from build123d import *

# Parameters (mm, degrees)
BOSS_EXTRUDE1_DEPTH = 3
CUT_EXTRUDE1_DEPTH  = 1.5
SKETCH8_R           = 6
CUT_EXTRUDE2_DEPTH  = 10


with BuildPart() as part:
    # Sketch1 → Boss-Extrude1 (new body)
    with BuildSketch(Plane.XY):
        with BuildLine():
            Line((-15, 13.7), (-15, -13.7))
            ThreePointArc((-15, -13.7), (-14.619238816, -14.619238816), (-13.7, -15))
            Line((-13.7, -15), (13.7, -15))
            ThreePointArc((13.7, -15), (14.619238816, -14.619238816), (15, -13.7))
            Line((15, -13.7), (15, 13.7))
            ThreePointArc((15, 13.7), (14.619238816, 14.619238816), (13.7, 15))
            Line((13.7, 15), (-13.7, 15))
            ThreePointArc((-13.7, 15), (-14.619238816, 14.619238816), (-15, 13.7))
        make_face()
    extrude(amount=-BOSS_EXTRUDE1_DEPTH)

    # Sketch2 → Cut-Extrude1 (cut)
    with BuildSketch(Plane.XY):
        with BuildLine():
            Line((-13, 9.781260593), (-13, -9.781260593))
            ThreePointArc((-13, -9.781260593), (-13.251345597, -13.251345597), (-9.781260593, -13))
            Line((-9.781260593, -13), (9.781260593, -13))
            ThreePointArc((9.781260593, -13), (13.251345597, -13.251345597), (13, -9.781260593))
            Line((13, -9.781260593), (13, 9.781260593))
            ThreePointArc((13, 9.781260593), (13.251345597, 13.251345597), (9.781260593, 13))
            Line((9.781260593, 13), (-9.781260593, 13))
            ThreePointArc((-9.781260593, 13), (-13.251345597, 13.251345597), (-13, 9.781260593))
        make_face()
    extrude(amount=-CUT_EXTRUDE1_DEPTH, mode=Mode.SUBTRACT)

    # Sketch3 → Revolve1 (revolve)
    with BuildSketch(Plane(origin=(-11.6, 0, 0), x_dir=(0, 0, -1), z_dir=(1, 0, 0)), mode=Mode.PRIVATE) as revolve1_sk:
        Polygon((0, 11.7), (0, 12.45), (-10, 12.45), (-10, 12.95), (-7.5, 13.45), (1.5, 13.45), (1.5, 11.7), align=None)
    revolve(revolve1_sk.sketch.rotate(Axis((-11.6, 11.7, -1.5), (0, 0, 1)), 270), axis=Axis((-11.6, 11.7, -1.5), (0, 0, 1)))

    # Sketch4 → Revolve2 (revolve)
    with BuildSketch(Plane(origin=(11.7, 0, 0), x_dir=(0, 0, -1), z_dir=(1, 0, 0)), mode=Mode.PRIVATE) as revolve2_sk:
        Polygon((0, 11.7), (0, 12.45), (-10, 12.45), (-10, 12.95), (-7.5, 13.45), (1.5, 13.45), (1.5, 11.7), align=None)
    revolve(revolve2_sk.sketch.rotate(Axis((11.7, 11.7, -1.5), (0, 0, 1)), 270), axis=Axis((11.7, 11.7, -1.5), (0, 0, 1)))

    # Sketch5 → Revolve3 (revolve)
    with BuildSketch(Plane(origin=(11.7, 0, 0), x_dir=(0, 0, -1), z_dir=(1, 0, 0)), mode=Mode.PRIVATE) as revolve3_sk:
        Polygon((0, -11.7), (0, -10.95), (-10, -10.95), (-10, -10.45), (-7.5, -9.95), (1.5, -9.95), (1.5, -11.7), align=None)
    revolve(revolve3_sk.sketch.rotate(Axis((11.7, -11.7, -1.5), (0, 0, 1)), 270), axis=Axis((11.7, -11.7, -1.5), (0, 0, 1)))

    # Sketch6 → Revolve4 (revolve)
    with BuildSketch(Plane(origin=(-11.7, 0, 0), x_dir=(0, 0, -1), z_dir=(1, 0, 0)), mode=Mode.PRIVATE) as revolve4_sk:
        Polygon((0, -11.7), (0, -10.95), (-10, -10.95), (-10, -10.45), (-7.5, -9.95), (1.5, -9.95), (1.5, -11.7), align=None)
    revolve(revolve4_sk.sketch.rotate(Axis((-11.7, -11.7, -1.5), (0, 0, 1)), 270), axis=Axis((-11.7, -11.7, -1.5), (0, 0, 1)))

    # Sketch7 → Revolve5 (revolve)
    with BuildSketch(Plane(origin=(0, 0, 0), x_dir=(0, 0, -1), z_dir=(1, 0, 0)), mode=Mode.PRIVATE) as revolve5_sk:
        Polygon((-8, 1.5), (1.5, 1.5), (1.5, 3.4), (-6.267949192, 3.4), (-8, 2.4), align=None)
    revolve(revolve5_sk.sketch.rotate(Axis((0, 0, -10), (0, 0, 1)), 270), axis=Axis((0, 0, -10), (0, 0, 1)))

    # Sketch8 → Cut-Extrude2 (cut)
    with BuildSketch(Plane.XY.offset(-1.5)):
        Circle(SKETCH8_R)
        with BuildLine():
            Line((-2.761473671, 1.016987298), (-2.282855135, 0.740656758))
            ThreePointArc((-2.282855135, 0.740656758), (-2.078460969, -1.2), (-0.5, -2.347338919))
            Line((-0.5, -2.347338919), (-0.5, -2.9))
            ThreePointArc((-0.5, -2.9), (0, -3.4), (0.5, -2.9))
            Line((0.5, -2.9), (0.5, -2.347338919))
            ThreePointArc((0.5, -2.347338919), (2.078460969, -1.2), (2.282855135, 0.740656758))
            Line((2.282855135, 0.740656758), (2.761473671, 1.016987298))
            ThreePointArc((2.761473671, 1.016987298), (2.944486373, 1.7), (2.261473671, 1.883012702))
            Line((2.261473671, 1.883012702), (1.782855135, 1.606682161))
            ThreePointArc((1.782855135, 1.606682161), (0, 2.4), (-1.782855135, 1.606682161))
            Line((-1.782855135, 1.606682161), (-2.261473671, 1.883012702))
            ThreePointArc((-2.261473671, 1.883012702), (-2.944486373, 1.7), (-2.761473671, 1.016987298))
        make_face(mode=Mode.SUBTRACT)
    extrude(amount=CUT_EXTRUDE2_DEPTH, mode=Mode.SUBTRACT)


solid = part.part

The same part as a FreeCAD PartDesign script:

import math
import FreeCAD as App
import Part
import Sketcher
from FreeCAD import Vector
Q = App.Units.Quantity

doc = App.newDocument("Part")
body = doc.addObject("PartDesign::Body", "Body")

# Sketch on XY plane
sketch1 = body.newObject("Sketcher::SketchObject", "Sketch")
sketch1.AttachmentSupport = (doc.getObject("XY_Plane"), [""])
sketch1.MapMode = "FlatFace"
sketch1.addGeometry([
    Part.LineSegment(Vector(-15, 13.7, 0), Vector(-15, -13.7, 0)),  # 0
    Part.ArcOfCircle(Part.Circle(Vector(-13.7, -13.7, 0), Vector(0, 0, 1), 1.3), math.radians(180), math.radians(270)),  # 1
    Part.LineSegment(Vector(-13.7, -15, 0), Vector(13.7, -15, 0)),  # 2
    Part.ArcOfCircle(Part.Circle(Vector(13.7, -13.7, 0), Vector(0, 0, 1), 1.3), math.radians(-90), math.radians(0)),  # 3
    Part.LineSegment(Vector(15, -13.7, 0), Vector(15, 13.7, 0)),  # 4
    Part.ArcOfCircle(Part.Circle(Vector(13.7, 13.7, 0), Vector(0, 0, 1), 1.3), math.radians(0), math.radians(90)),  # 5
    Part.LineSegment(Vector(13.7, 15, 0), Vector(-13.7, 15, 0)),  # 6
    Part.ArcOfCircle(Part.Circle(Vector(-13.7, 13.7, 0), Vector(0, 0, 1), 1.3), math.radians(90), math.radians(180)),  # 7
], False)
sketch1.addConstraint([
    Sketcher.Constraint("Tangent", 0, 2, 1, 1),
    Sketcher.Constraint("Tangent", 1, 2, 2, 1),
    Sketcher.Constraint("Tangent", 2, 2, 3, 1),
    Sketcher.Constraint("Tangent", 3, 2, 4, 1),
    Sketcher.Constraint("Tangent", 4, 2, 5, 1),
    Sketcher.Constraint("Tangent", 5, 2, 6, 1),
    Sketcher.Constraint("Tangent", 6, 2, 7, 1),
    Sketcher.Constraint("Tangent", 7, 2, 0, 1),
    Sketcher.Constraint("Vertical", 0),
    Sketcher.Constraint("Horizontal", 2),
    Sketcher.Constraint("Vertical", 4),
    Sketcher.Constraint("Horizontal", 6),
    Sketcher.Constraint("Equal", 1, 3),
    Sketcher.Constraint("Equal", 3, 5),
    Sketcher.Constraint("Equal", 5, 7),
    Sketcher.Constraint("Symmetric", 1, 3, 5, 3, -1, 1),
    Sketcher.Constraint("Equal", 6, 0),
    Sketcher.Constraint("Radius", 1, Q("1.3 mm")),
    Sketcher.Constraint("DistanceX", 2, 1, 2, 2, Q("27.4 mm")),
])
pad1 = body.newObject("PartDesign::Pad", "Pad")
pad1.Profile = sketch1
pad1.Length = 3
pad1.Reversed = True

# Sketch on XY plane
sketch2 = body.newObject("Sketcher::SketchObject", "Sketch001")
sketch2.AttachmentSupport = (doc.getObject("XY_Plane"), [""])
sketch2.MapMode = "FlatFace"
sketch2.addGeometry([
    Part.LineSegment(Vector(-13, 9.8, 0), Vector(-13, -9.8, 0)),  # 0
    Part.ArcOfCircle(Part.Circle(Vector(-11.6, -11.6, 0), Vector(0, 0, 1), 2.3), math.radians(127), math.radians(323)),  # 1
    Part.LineSegment(Vector(-9.8, -13, 0), Vector(9.8, -13, 0)),  # 2
    Part.ArcOfCircle(Part.Circle(Vector(11.6, -11.6, 0), Vector(0, 0, 1), 2.3), math.radians(-143), math.radians(53)),  # 3
    Part.LineSegment(Vector(13, -9.8, 0), Vector(13, 9.8, 0)),  # 4
    Part.ArcOfCircle(Part.Circle(Vector(11.6, 11.6, 0), Vector(0, 0, 1), 2.3), math.radians(-53), math.radians(143)),  # 5
    Part.LineSegment(Vector(9.8, 13, 0), Vector(-9.8, 13, 0)),  # 6
    Part.ArcOfCircle(Part.Circle(Vector(-11.6, 11.6, 0), Vector(0, 0, 1), 2.3), math.radians(37), math.radians(233)),  # 7
], False)
sketch2.addConstraint([
    Sketcher.Constraint("Coincident", 0, 2, 1, 1),
    Sketcher.Constraint("Coincident", 1, 2, 2, 1),
    Sketcher.Constraint("Coincident", 2, 2, 3, 1),
    Sketcher.Constraint("Coincident", 3, 2, 4, 1),
    Sketcher.Constraint("Coincident", 4, 2, 5, 1),
    Sketcher.Constraint("Coincident", 5, 2, 6, 1),
    Sketcher.Constraint("Coincident", 6, 2, 7, 1),
    Sketcher.Constraint("Coincident", 7, 2, 0, 1),
    Sketcher.Constraint("Vertical", 0),
    Sketcher.Constraint("Horizontal", 2),
    Sketcher.Constraint("Vertical", 4),
    Sketcher.Constraint("Horizontal", 6),
    Sketcher.Constraint("Equal", 1, 3),
    Sketcher.Constraint("Equal", 3, 5),
    Sketcher.Constraint("Equal", 5, 7),
    Sketcher.Constraint("Symmetric", 1, 3, 5, 3, -1, 1),
    Sketcher.Constraint("Symmetric", 3, 3, 7, 3, -1, 1),
    Sketcher.Constraint("Symmetric", 1, 3, 3, 3, -2),
    Sketcher.Constraint("Horizontal", 0, 2, 3, 2),
    Sketcher.Constraint("Vertical", 2, 2, 5, 2),
    Sketcher.Constraint("Equal", 6, 0),
    Sketcher.Constraint("Radius", 1, Q("2.3 mm")),
    Sketcher.Constraint("DistanceX", 0, 2, -1, 1, Q("13 mm")),
    Sketcher.Constraint("DistanceY", 1, 2, -1, 1, Q("13 mm")),
    Sketcher.Constraint("DistanceX", 1, 3, 3, 3, Q("23.25 mm")),
])
pocket1 = body.newObject("PartDesign::Pocket", "Pocket")
pocket1.Profile = sketch2
pocket1.Length = 1.5

# Sketch on YZ plane
sketch3 = body.newObject("Sketcher::SketchObject", "Sketch002")
sketch3.AttachmentSupport = (doc.getObject("YZ_Plane"), [""])
sketch3.MapMode = "FlatFace"
sketch3.AttachmentOffset = App.Placement(Vector(0, 0, -11.6), App.Rotation())
sketch3.addGeometry([
    Part.LineSegment(Vector(12.4, 0, 0), Vector(11.7, 0, 0)),  # 0
    Part.LineSegment(Vector(11.7, 0, 0), Vector(11.7, -1.5, 0)),  # 1
    Part.LineSegment(Vector(11.7, -1.5, 0), Vector(13.4, -1.5, 0)),  # 2
    Part.LineSegment(Vector(13.4, -1.5, 0), Vector(13.4, 7.5, 0)),  # 3
    Part.LineSegment(Vector(13.4, 7.5, 0), Vector(12.9, 10, 0)),  # 4
    Part.LineSegment(Vector(12.9, 10, 0), Vector(12.4, 10, 0)),  # 5
    Part.LineSegment(Vector(12.4, 10, 0), Vector(12.4, 0, 0)),  # 6
], False)
sketch3.addGeometry(Part.LineSegment(Vector(11.7, -1.5, 0), Vector(11.7, 10, 0)), True)  # axis
sketch3.addConstraint([
    Sketcher.Constraint("Coincident", 0, 2, 1, 1),
    Sketcher.Constraint("Coincident", 1, 2, 2, 1),
    Sketcher.Constraint("Coincident", 2, 2, 3, 1),
    Sketcher.Constraint("Coincident", 3, 2, 4, 1),
    Sketcher.Constraint("Coincident", 4, 2, 5, 1),
    Sketcher.Constraint("Coincident", 5, 2, 6, 1),
    Sketcher.Constraint("Coincident", 6, 2, 0, 1),
    Sketcher.Constraint("Horizontal", 0),
    Sketcher.Constraint("Vertical", 1),
    Sketcher.Constraint("Horizontal", 2),
    Sketcher.Constraint("Vertical", 3),
    Sketcher.Constraint("Horizontal", 5),
    Sketcher.Constraint("Vertical", 6),
    Sketcher.Constraint("Vertical", 7),
    Sketcher.Constraint("Coincident", 7, 1, 1, 2),
    Sketcher.Constraint("PointOnObject", 0, 2, -1),
    Sketcher.Constraint("Horizontal", 5, 2, 7, 2),
    Sketcher.Constraint("DistanceY", 3, 1, 3, 2, Q("9 mm")),
    Sketcher.Constraint("DistanceY", 6, 2, 6, 1, Q("10 mm")),
    Sketcher.Constraint("DistanceX", 5, 2, 5, 1, Q("0.5 mm")),
    Sketcher.Constraint("DistanceY", 1, 2, 1, 1, Q("1.5 mm")),
    Sketcher.Constraint("DistanceX", 5, 2, 3, 2, Q("1 mm")),
    Sketcher.Constraint("DistanceX", 0, 2, 0, 1, Q("0.75 mm")),
    Sketcher.Constraint("DistanceX", -1, 1, 0, 2, Q("11.7 mm")),
])
revolution = body.newObject("PartDesign::Revolution", "Revolution")
revolution.Profile = sketch3
revolution.ReferenceAxis = (sketch3, ["Axis0"])
revolution.Angle = 360

# Sketch on YZ plane
sketch4 = body.newObject("Sketcher::SketchObject", "Sketch003")
sketch4.AttachmentSupport = (doc.getObject("YZ_Plane"), [""])
sketch4.MapMode = "FlatFace"
sketch4.AttachmentOffset = App.Placement(Vector(0, 0, 11.7), App.Rotation())
sketch4.addGeometry([
    Part.LineSegment(Vector(12.4, 0, 0), Vector(11.7, 0, 0)),  # 0
    Part.LineSegment(Vector(11.7, 0, 0), Vector(11.7, -1.5, 0)),  # 1
    Part.LineSegment(Vector(11.7, -1.5, 0), Vector(13.4, -1.5, 0)),  # 2
    Part.LineSegment(Vector(13.4, -1.5, 0), Vector(13.4, 7.5, 0)),  # 3
    Part.LineSegment(Vector(13.4, 7.5, 0), Vector(12.9, 10, 0)),  # 4
    Part.LineSegment(Vector(12.9, 10, 0), Vector(12.4, 10, 0)),  # 5
    Part.LineSegment(Vector(12.4, 10, 0), Vector(12.4, 0, 0)),  # 6
], False)
sketch4.addGeometry(Part.LineSegment(Vector(11.7, -1.5, 0), Vector(11.7, 10, 0)), True)  # axis
sketch4.addConstraint([
    Sketcher.Constraint("Coincident", 0, 2, 1, 1),
    Sketcher.Constraint("Coincident", 1, 2, 2, 1),
    Sketcher.Constraint("Coincident", 2, 2, 3, 1),
    Sketcher.Constraint("Coincident", 3, 2, 4, 1),
    Sketcher.Constraint("Coincident", 4, 2, 5, 1),
    Sketcher.Constraint("Coincident", 5, 2, 6, 1),
    Sketcher.Constraint("Coincident", 6, 2, 0, 1),
    Sketcher.Constraint("Horizontal", 0),
    Sketcher.Constraint("Vertical", 1),
    Sketcher.Constraint("Horizontal", 2),
    Sketcher.Constraint("Vertical", 3),
    Sketcher.Constraint("Horizontal", 5),
    Sketcher.Constraint("Vertical", 6),
    Sketcher.Constraint("Vertical", 7),
    Sketcher.Constraint("Coincident", 7, 1, 1, 2),
    Sketcher.Constraint("PointOnObject", 0, 2, -1),
    Sketcher.Constraint("Horizontal", 5, 2, 7, 2),
    Sketcher.Constraint("DistanceY", 3, 1, 3, 2, Q("9 mm")),
    Sketcher.Constraint("DistanceY", 6, 2, 6, 1, Q("10 mm")),
    Sketcher.Constraint("DistanceX", 5, 2, 5, 1, Q("0.5 mm")),
    Sketcher.Constraint("DistanceY", 1, 2, 1, 1, Q("1.5 mm")),
    Sketcher.Constraint("DistanceX", 5, 2, 3, 2, Q("1 mm")),
    Sketcher.Constraint("DistanceX", 0, 2, 0, 1, Q("0.75 mm")),
    Sketcher.Constraint("DistanceX", -1, 1, 0, 2, Q("11.7 mm")),
])
revolution2 = body.newObject("PartDesign::Revolution", "Revolution001")
revolution2.Profile = sketch4
revolution2.ReferenceAxis = (sketch4, ["Axis0"])
revolution2.Angle = 360

# Sketch on YZ plane
sketch5 = body.newObject("Sketcher::SketchObject", "Sketch004")
sketch5.AttachmentSupport = (doc.getObject("YZ_Plane"), [""])
sketch5.MapMode = "FlatFace"
sketch5.AttachmentOffset = App.Placement(Vector(0, 0, 11.7), App.Rotation())
sketch5.addGeometry([
    Part.LineSegment(Vector(-10.9, 0, 0), Vector(-11.7, 0, 0)),  # 0
    Part.LineSegment(Vector(-11.7, 0, 0), Vector(-11.7, -1.5, 0)),  # 1
    Part.LineSegment(Vector(-11.7, -1.5, 0), Vector(-9.9, -1.5, 0)),  # 2
    Part.LineSegment(Vector(-9.9, -1.5, 0), Vector(-9.9, 7.5, 0)),  # 3
    Part.LineSegment(Vector(-9.9, 7.5, 0), Vector(-10.4, 10, 0)),  # 4
    Part.LineSegment(Vector(-10.4, 10, 0), Vector(-10.9, 10, 0)),  # 5
    Part.LineSegment(Vector(-10.9, 10, 0), Vector(-10.9, 0, 0)),  # 6
], False)
sketch5.addGeometry(Part.LineSegment(Vector(-11.7, -1.5, 0), Vector(-11.7, 10, 0)), True)  # axis
sketch5.addConstraint([
    Sketcher.Constraint("Coincident", 0, 2, 1, 1),
    Sketcher.Constraint("Coincident", 1, 2, 2, 1),
    Sketcher.Constraint("Coincident", 2, 2, 3, 1),
    Sketcher.Constraint("Coincident", 3, 2, 4, 1),
    Sketcher.Constraint("Coincident", 4, 2, 5, 1),
    Sketcher.Constraint("Coincident", 5, 2, 6, 1),
    Sketcher.Constraint("Coincident", 6, 2, 0, 1),
    Sketcher.Constraint("Horizontal", 0),
    Sketcher.Constraint("Vertical", 1),
    Sketcher.Constraint("Horizontal", 2),
    Sketcher.Constraint("Vertical", 3),
    Sketcher.Constraint("Horizontal", 5),
    Sketcher.Constraint("Vertical", 6),
    Sketcher.Constraint("Vertical", 7),
    Sketcher.Constraint("Coincident", 7, 1, 1, 2),
    Sketcher.Constraint("PointOnObject", 0, 2, -1),
    Sketcher.Constraint("Horizontal", 5, 2, 7, 2),
    Sketcher.Constraint("DistanceY", 3, 1, 3, 2, Q("9 mm")),
    Sketcher.Constraint("DistanceY", 6, 2, 6, 1, Q("10 mm")),
    Sketcher.Constraint("DistanceX", 5, 2, 5, 1, Q("0.5 mm")),
    Sketcher.Constraint("DistanceY", 1, 2, 1, 1, Q("1.5 mm")),
    Sketcher.Constraint("DistanceX", 5, 2, 3, 2, Q("1 mm")),
    Sketcher.Constraint("DistanceX", 0, 2, 0, 1, Q("0.75 mm")),
    Sketcher.Constraint("DistanceX", 0, 2, -1, 1, Q("11.7 mm")),
])
revolution3 = body.newObject("PartDesign::Revolution", "Revolution002")
revolution3.Profile = sketch5
revolution3.ReferenceAxis = (sketch5, ["Axis0"])
revolution3.Angle = 360

# Sketch on YZ plane
sketch6 = body.newObject("Sketcher::SketchObject", "Sketch005")
sketch6.AttachmentSupport = (doc.getObject("YZ_Plane"), [""])
sketch6.MapMode = "FlatFace"
sketch6.AttachmentOffset = App.Placement(Vector(0, 0, -11.7), App.Rotation())
sketch6.addGeometry([
    Part.LineSegment(Vector(-10.9, 0, 0), Vector(-11.7, 0, 0)),  # 0
    Part.LineSegment(Vector(-11.7, 0, 0), Vector(-11.7, -1.5, 0)),  # 1
    Part.LineSegment(Vector(-11.7, -1.5, 0), Vector(-9.9, -1.5, 0)),  # 2
    Part.LineSegment(Vector(-9.9, -1.5, 0), Vector(-9.9, 7.5, 0)),  # 3
    Part.LineSegment(Vector(-9.9, 7.5, 0), Vector(-10.4, 10, 0)),  # 4
    Part.LineSegment(Vector(-10.4, 10, 0), Vector(-10.9, 10, 0)),  # 5
    Part.LineSegment(Vector(-10.9, 10, 0), Vector(-10.9, 0, 0)),  # 6
], False)
sketch6.addGeometry(Part.LineSegment(Vector(-11.7, -1.5, 0), Vector(-11.7, 10, 0)), True)  # axis
sketch6.addConstraint([
    Sketcher.Constraint("Coincident", 0, 2, 1, 1),
    Sketcher.Constraint("Coincident", 1, 2, 2, 1),
    Sketcher.Constraint("Coincident", 2, 2, 3, 1),
    Sketcher.Constraint("Coincident", 3, 2, 4, 1),
    Sketcher.Constraint("Coincident", 4, 2, 5, 1),
    Sketcher.Constraint("Coincident", 5, 2, 6, 1),
    Sketcher.Constraint("Coincident", 6, 2, 0, 1),
    Sketcher.Constraint("Horizontal", 0),
    Sketcher.Constraint("Vertical", 1),
    Sketcher.Constraint("Horizontal", 2),
    Sketcher.Constraint("Vertical", 3),
    Sketcher.Constraint("Horizontal", 5),
    Sketcher.Constraint("Vertical", 6),
    Sketcher.Constraint("Vertical", 7),
    Sketcher.Constraint("Coincident", 7, 1, 1, 2),
    Sketcher.Constraint("PointOnObject", 0, 2, -1),
    Sketcher.Constraint("Horizontal", 5, 2, 7, 2),
    Sketcher.Constraint("DistanceY", 3, 1, 3, 2, Q("9 mm")),
    Sketcher.Constraint("DistanceY", 6, 2, 6, 1, Q("10 mm")),
    Sketcher.Constraint("DistanceX", 5, 2, 5, 1, Q("0.5 mm")),
    Sketcher.Constraint("DistanceY", 1, 2, 1, 1, Q("1.5 mm")),
    Sketcher.Constraint("DistanceX", 5, 2, 3, 2, Q("1 mm")),
    Sketcher.Constraint("DistanceX", 0, 2, 0, 1, Q("0.75 mm")),
    Sketcher.Constraint("DistanceX", 0, 2, -1, 1, Q("11.7 mm")),
])
revolution4 = body.newObject("PartDesign::Revolution", "Revolution003")
revolution4.Profile = sketch6
revolution4.ReferenceAxis = (sketch6, ["Axis0"])
revolution4.Angle = 360

# Sketch on YZ plane
sketch7 = body.newObject("Sketcher::SketchObject", "Sketch006")
sketch7.AttachmentSupport = (doc.getObject("YZ_Plane"), [""])
sketch7.MapMode = "FlatFace"
sketch7.addGeometry([
    Part.LineSegment(Vector(1.5, 8, 0), Vector(1.5, -1.5, 0)),  # 0
    Part.LineSegment(Vector(1.5, -1.5, 0), Vector(3.4, -1.5, 0)),  # 1
    Part.LineSegment(Vector(3.4, -1.5, 0), Vector(3.4, 6.3, 0)),  # 2
    Part.LineSegment(Vector(3.4, 6.3, 0), Vector(2.4, 8, 0)),  # 3
    Part.LineSegment(Vector(2.4, 8, 0), Vector(1.5, 8, 0)),  # 4
], False)
sketch7.addConstraint([
    Sketcher.Constraint("Coincident", 0, 2, 1, 1),
    Sketcher.Constraint("Coincident", 1, 2, 2, 1),
    Sketcher.Constraint("Coincident", 2, 2, 3, 1),
    Sketcher.Constraint("Coincident", 3, 2, 4, 1),
    Sketcher.Constraint("Coincident", 4, 2, 0, 1),
    Sketcher.Constraint("Vertical", 0),
    Sketcher.Constraint("Horizontal", 1),
    Sketcher.Constraint("Vertical", 2),
    Sketcher.Constraint("Horizontal", 4),
    Sketcher.Constraint("Angle", 3, Q("120 deg")),
    Sketcher.Constraint("Distance", 3, Q("2 mm")),
    Sketcher.Constraint("DistanceX", 1, 1, 1, 2, Q("1.9 mm")),
    Sketcher.Constraint("DistanceY", 0, 2, 0, 1, Q("9.5 mm")),
    Sketcher.Constraint("DistanceY", -1, 1, 3, 2, Q("8 mm")),
    Sketcher.Constraint("DistanceX", -1, 1, 0, 2, Q("1.5 mm")),
])
revolution5 = body.newObject("PartDesign::Revolution", "Revolution004")
revolution5.Profile = sketch7
revolution5.ReferenceAxis = (sketch7, ["V_Axis"])
revolution5.Angle = 360

# Sketch on XY plane
sketch8 = body.newObject("Sketcher::SketchObject", "Sketch007")
sketch8.AttachmentSupport = (doc.getObject("XY_Plane"), [""])
sketch8.MapMode = "FlatFace"
sketch8.AttachmentOffset = App.Placement(Vector(0, 0, -1.5), App.Rotation())
sketch8.addGeometry([
    Part.Circle(Vector(0, 0, 0), Vector(0, 0, 1), 6),  # 0
    Part.LineSegment(Vector(-2.3, 0.7, 0), Vector(-2.8, 1, 0)),  # 1
    Part.ArcOfCircle(Part.Circle(Vector(-2.5, 1.4, 0), Vector(0, 0, 1), 0.5), math.radians(60), math.radians(240)),  # 2
    Part.LineSegment(Vector(-2.3, 1.9, 0), Vector(-1.8, 1.6, 0)),  # 3
    Part.ArcOfCircle(Part.Circle(Vector(0, 0, 0), Vector(0, 0, 1), 2.4), math.radians(42), math.radians(138)),  # 4
    Part.LineSegment(Vector(1.8, 1.6, 0), Vector(2.3, 1.9, 0)),  # 5
    Part.ArcOfCircle(Part.Circle(Vector(2.5, 1.4, 0), Vector(0, 0, 1), 0.5), math.radians(-60), math.radians(120)),  # 6
    Part.LineSegment(Vector(2.8, 1, 0), Vector(2.3, 0.7, 0)),  # 7
    Part.ArcOfCircle(Part.Circle(Vector(0, 0, 0), Vector(0, 0, 1), 2.4), math.radians(-78), math.radians(18)),  # 8
    Part.LineSegment(Vector(0.5, -2.3, 0), Vector(0.5, -2.9, 0)),  # 9
    Part.ArcOfCircle(Part.Circle(Vector(0, -2.9, 0), Vector(0, 0, 1), 0.5), math.radians(180), math.radians(360)),  # 10
    Part.LineSegment(Vector(-0.5, -2.9, 0), Vector(-0.5, -2.3, 0)),  # 11
    Part.ArcOfCircle(Part.Circle(Vector(0, 0, 0), Vector(0, 0, 1), 2.4), math.radians(162), math.radians(258)),  # 12
], False)
sketch8.addConstraint([
    Sketcher.Constraint("Tangent", 1, 2, 2, 2),
    Sketcher.Constraint("Tangent", 2, 1, 3, 1),
    Sketcher.Constraint("Coincident", 3, 2, 4, 2),
    Sketcher.Constraint("Coincident", 4, 1, 5, 1),
    Sketcher.Constraint("Tangent", 5, 2, 6, 2),
    Sketcher.Constraint("Tangent", 6, 1, 7, 1),
    Sketcher.Constraint("Coincident", 7, 2, 8, 2),
    Sketcher.Constraint("Coincident", 8, 1, 9, 1),
    Sketcher.Constraint("Tangent", 9, 2, 10, 2),
    Sketcher.Constraint("Tangent", 10, 1, 11, 1),
    Sketcher.Constraint("Coincident", 11, 2, 12, 2),
    Sketcher.Constraint("Coincident", 12, 1, 1, 1),
    Sketcher.Constraint("Vertical", 9),
    Sketcher.Constraint("Vertical", 11),
    Sketcher.Constraint("Coincident", 0, 3, -1, 1),
    Sketcher.Constraint("Coincident", 4, 3, -1, 1),
    Sketcher.Constraint("Coincident", 8, 3, -1, 1),
    Sketcher.Constraint("Coincident", 12, 3, -1, 1),
    Sketcher.Constraint("Equal", 2, 6),
    Sketcher.Constraint("Equal", 4, 8),
    Sketcher.Constraint("Equal", 6, 10),
    Sketcher.Constraint("Equal", 8, 12),
    Sketcher.Constraint("Symmetric", 2, 3, 6, 3, -2),
    Sketcher.Constraint("PointOnObject", 10, 3, -2),
    Sketcher.Constraint("Parallel", 1, 3),
    Sketcher.Constraint("Parallel", 5, 7),
    Sketcher.Constraint("Horizontal", 3, 2, 4, 1),
    Sketcher.Constraint("Equal", 1, 3),
    Sketcher.Constraint("Diameter", 0, Q("12 mm")),
    Sketcher.Constraint("Radius", 2, Q("0.5 mm")),
    Sketcher.Constraint("Radius", 4, Q("2.4 mm")),
    Sketcher.Constraint("Angle", 1, Q("150 deg")),
    Sketcher.Constraint("DistanceY", 10, 3, -1, 1, Q("2.9 mm")),
    Sketcher.Constraint("DistanceY", -1, 1, 2, 3, Q("1.45 mm")),
])
pocket2 = body.newObject("PartDesign::Pocket", "Pocket001")
pocket2.Profile = sketch8
pocket2.Length = 10
pocket2.Reversed = True

doc.recompute()
